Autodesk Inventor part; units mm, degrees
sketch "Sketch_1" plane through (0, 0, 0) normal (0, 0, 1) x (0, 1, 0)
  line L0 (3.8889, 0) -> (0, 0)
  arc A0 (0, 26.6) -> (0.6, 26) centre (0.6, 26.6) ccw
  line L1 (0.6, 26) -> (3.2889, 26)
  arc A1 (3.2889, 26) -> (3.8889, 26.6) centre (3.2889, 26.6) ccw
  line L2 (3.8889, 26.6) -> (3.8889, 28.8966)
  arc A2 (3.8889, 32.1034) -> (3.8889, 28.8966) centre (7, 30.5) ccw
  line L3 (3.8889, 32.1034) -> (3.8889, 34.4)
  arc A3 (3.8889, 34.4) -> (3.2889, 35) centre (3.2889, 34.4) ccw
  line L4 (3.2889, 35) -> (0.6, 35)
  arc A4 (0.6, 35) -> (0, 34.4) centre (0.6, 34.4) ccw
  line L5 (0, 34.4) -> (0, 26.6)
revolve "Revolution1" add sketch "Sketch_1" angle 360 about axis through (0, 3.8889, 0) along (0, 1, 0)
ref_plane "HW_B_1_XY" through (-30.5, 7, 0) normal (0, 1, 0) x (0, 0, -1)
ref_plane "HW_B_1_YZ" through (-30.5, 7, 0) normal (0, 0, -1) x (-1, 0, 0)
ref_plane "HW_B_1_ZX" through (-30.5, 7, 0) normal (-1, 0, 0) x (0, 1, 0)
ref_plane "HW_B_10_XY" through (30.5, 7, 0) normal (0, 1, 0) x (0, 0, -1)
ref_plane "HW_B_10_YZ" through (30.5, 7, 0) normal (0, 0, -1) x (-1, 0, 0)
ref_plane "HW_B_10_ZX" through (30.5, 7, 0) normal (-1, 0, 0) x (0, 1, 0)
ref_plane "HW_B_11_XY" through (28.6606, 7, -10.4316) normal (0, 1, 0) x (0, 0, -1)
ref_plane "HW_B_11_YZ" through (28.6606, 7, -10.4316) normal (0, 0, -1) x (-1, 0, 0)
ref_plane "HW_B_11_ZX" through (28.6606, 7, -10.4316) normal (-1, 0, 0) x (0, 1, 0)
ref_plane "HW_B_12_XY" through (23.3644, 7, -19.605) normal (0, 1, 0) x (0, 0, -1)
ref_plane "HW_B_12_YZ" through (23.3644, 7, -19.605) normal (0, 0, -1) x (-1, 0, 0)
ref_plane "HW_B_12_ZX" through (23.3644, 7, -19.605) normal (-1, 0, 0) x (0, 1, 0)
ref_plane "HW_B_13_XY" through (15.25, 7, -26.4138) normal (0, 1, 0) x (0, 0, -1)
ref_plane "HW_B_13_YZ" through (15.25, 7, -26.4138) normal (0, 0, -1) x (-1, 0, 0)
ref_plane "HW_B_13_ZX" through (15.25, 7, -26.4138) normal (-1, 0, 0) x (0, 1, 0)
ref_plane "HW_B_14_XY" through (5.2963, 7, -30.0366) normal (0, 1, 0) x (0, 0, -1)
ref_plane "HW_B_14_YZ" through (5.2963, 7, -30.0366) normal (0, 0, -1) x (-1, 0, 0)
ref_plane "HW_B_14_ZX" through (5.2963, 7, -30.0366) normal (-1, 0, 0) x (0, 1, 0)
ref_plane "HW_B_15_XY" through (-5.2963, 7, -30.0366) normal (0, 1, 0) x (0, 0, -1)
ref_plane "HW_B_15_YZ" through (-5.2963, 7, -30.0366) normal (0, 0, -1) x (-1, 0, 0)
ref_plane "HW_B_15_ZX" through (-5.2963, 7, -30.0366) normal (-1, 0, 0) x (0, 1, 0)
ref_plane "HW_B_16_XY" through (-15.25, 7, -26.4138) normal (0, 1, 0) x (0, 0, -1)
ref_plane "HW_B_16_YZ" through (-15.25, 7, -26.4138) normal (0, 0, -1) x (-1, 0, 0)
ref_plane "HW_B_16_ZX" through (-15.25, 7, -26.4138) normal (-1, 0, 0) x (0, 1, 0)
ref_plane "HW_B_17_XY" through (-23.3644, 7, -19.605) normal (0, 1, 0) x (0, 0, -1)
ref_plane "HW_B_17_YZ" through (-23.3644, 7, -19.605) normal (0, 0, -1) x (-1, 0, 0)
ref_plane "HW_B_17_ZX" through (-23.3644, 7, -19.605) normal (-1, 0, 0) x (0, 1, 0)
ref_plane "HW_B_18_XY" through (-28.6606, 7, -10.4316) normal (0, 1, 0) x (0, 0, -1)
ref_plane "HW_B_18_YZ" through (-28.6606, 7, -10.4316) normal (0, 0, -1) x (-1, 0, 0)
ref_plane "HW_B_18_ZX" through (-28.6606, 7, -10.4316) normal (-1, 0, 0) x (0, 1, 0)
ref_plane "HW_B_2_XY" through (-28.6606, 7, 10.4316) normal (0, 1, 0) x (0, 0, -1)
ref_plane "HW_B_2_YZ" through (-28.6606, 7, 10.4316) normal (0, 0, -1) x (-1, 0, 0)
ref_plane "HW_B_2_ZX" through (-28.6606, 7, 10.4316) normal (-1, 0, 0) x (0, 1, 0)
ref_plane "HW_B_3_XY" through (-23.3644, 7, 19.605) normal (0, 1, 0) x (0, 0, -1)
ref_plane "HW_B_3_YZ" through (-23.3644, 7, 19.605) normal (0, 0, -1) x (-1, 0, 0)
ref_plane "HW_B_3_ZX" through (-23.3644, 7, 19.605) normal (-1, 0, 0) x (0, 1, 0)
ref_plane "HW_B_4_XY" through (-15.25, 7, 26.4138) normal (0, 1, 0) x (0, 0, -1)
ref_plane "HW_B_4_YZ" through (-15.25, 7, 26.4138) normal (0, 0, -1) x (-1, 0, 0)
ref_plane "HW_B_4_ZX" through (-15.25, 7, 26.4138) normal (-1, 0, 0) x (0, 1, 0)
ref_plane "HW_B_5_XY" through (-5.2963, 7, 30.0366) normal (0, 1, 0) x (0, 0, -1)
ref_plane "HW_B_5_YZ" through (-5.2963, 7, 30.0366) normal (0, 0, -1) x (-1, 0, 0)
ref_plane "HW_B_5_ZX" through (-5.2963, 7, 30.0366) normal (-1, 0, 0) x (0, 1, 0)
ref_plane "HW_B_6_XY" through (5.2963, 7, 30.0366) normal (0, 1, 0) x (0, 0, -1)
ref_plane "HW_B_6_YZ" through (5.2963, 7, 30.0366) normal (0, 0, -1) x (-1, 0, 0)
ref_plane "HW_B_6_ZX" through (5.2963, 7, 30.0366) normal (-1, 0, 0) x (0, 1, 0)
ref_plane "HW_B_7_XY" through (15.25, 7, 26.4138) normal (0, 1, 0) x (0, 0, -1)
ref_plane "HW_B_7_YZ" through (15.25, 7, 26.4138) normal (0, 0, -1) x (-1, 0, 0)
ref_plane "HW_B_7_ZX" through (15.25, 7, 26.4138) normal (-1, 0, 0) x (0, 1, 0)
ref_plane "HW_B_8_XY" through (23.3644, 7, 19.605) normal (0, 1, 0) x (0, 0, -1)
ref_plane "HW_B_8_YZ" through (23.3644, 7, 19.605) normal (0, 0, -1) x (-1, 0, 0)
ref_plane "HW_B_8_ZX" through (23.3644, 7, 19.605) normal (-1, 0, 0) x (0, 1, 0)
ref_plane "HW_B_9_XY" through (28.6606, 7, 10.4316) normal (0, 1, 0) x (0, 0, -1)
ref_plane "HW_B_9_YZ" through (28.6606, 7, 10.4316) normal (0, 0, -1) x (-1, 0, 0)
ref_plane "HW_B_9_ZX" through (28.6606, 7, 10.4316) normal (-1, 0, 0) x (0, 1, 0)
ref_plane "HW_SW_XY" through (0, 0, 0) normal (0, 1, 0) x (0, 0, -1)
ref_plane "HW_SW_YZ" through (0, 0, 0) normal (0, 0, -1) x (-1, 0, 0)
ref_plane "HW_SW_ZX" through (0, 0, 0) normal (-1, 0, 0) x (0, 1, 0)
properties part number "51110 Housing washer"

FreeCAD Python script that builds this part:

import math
import FreeCAD as App
import Part
import Sketcher
from FreeCAD import Vector
Q = App.Units.Quantity

doc = App.newDocument("Part")
body = doc.addObject("PartDesign::Body", "Body")

# Sketch on XY plane
sketch1 = body.newObject("Sketcher::SketchObject", "Sketch")
sketch1.AttachmentSupport = (doc.getObject("XY_Plane"), [""])
sketch1.MapMode = "FlatFace"
sketch1.addGeometry(Part.LineSegment(Vector(-34.4, 0, 0), Vector(-26.6, 0, 0)), False)
sketch1.addGeometry(Part.ArcOfCircle(Part.Circle(Vector(-26.6, 0.6, 0), Vector(0, 0, 1), 0.6), math.radians(-90), math.radians(0)), False)
sketch1.addGeometry(Part.LineSegment(Vector(-26, 0.6, 0), Vector(-26, 3.3, 0)), False)
sketch1.addGeometry(Part.ArcOfCircle(Part.Circle(Vector(-26.6, 3.3, 0), Vector(0, 0, 1), 0.6), math.radians(0), math.radians(90)), False)
sketch1.addGeometry(Part.LineSegment(Vector(-26.6, 3.9, 0), Vector(-28.9, 3.9, 0)), False)
sketch1.addGeometry(Part.ArcOfCircle(Part.Circle(Vector(-30.5, 7, 0), Vector(0, 0, 1), 3.5), math.radians(-117), math.radians(-63)), False)
sketch1.addGeometry(Part.LineSegment(Vector(-32.1, 3.9, 0), Vector(-34.4, 3.9, 0)), False)
sketch1.addGeometry(Part.ArcOfCircle(Part.Circle(Vector(-34.4, 3.3, 0), Vector(0, 0, 1), 0.6), math.radians(90), math.radians(180)), False)
sketch1.addGeometry(Part.LineSegment(Vector(-35, 3.3, 0), Vector(-35, 0.6, 0)), False)
sketch1.addGeometry(Part.ArcOfCircle(Part.Circle(Vector(-34.4, 0.6, 0), Vector(0, 0, 1), 0.6), math.radians(180), math.radians(270)), False)
sketch1.addConstraint(Sketcher.Constraint("Tangent", 0, 2, 1, 1))
sketch1.addConstraint(Sketcher.Constraint("Tangent", 1, 2, 2, 1))
sketch1.addConstraint(Sketcher.Constraint("Tangent", 2, 2, 3, 1))
sketch1.addConstraint(Sketcher.Constraint("Tangent", 3, 2, 4, 1))
sketch1.addConstraint(Sketcher.Constraint("Coincident", 4, 2, 5, 2))
sketch1.addConstraint(Sketcher.Constraint("Coincident", 5, 1, 6, 1))
sketch1.addConstraint(Sketcher.Constraint("Tangent", 6, 2, 7, 1))
sketch1.addConstraint(Sketcher.Constraint("Tangent", 7, 2, 8, 1))
sketch1.addConstraint(Sketcher.Constraint("Tangent", 8, 2, 9, 1))
sketch1.addConstraint(Sketcher.Constraint("Tangent", 9, 2, 0, 1))
sketch1.addConstraint(Sketcher.Constraint("Horizontal", 0))
sketch1.addConstraint(Sketcher.Constraint("Vertical", 2))
sketch1.addConstraint(Sketcher.Constraint("Horizontal", 4))
sketch1.addConstraint(Sketcher.Constraint("Horizontal", 6))
sketch1.addConstraint(Sketcher.Constraint("Vertical", 8))
sketch1.addConstraint(Sketcher.Constraint("Equal", 1, 3))
sketch1.addConstraint(Sketcher.Constraint("Equal", 3, 7))
sketch1.addConstraint(Sketcher.Constraint("Equal", 7, 9))
sketch1.addConstraint(Sketcher.Constraint("PointOnObject", 0, 2, -1))
sketch1.addConstraint(Sketcher.Constraint("Horizontal", 3, 3, 7, 3))
sketch1.addConstraint(Sketcher.Constraint("Equal", 4, 6))
sketch1.addConstraint(Sketcher.Constraint("Radius", 1, Q("0.6 mm")))
sketch1.addConstraint(Sketcher.Constraint("Radius", 5, Q("3.5 mm")))
sketch1.addConstraint(Sketcher.Constraint("DistanceX", 0, 1, 0, 2, Q("7.8 mm")))
sketch1.addConstraint(Sketcher.Constraint("DistanceY", -1, 1, 5, 3, Q("7 mm")))
sketch1.addConstraint(Sketcher.Constraint("DistanceX", 1, 2, -1, 1, Q("26 mm")))
sketch1.addConstraint(Sketcher.Constraint("DistanceY", 2, 1, 2, 2, Q("2.689 mm")))
revolution = body.newObject("PartDesign::Revolution", "Revolution")
revolution.Profile = sketch1
revolution.ReferenceAxis = (sketch1, ["V_Axis"])
revolution.Angle = 360

doc.recompute()
